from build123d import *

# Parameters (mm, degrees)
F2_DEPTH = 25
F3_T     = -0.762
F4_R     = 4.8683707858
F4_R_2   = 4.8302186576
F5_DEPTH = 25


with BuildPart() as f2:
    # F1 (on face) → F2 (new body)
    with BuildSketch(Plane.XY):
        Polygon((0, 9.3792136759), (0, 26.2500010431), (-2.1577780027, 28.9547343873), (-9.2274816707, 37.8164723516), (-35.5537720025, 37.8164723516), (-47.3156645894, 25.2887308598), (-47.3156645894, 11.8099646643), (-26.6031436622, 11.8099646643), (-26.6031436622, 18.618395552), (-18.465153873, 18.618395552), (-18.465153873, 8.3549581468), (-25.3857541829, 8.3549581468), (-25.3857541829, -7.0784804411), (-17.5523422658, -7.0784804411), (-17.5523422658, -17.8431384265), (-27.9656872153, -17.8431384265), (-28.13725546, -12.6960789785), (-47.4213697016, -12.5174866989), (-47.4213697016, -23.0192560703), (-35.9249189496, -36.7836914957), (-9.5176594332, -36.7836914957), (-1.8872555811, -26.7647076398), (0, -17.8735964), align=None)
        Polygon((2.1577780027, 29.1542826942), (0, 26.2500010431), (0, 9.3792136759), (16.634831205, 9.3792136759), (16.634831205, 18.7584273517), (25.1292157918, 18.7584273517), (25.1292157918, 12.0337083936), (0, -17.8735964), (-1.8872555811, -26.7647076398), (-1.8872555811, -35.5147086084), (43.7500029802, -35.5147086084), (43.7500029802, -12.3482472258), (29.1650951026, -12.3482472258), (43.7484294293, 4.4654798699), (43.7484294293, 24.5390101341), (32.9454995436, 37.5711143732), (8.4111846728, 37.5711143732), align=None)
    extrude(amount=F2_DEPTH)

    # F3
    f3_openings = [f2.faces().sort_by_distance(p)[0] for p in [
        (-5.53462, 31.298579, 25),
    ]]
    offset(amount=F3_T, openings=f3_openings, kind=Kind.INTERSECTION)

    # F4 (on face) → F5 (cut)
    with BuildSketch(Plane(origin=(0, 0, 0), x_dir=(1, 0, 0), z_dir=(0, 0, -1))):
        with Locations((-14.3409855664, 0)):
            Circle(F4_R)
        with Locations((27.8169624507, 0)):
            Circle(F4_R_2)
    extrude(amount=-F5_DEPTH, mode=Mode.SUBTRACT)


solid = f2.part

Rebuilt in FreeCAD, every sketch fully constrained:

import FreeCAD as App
import Part
import Sketcher

V = App.Vector


def faces_at(feature, points):
    """Names of the faces that lie closest to the given points."""
    faces = feature.Shape.Faces
    near = lambda p: min(range(len(faces)), key=lambda i: faces[i].distToShape(Part.Vertex(*p))[0])
    return sorted({f"Face{near(p) + 1}" for p in points})


def add_polygon(sketch, points):
    """Adds a closed chain of lines whose ends are joined by coincident constraints."""
    first, n = sketch.GeometryCount, len(points)
    for a, b in zip(points, points[1:] + points[:1]):
        sketch.addGeometry(Part.LineSegment(App.Vector(*a, 0), App.Vector(*b, 0)), False)
    for i in range(n):
        sketch.addConstraint(Sketcher.Constraint("Coincident", first + i, 2, first + (i + 1) % n, 1))

doc = App.newDocument("Part")
body = doc.addObject("PartDesign::Body", "Body")

sketch1 = doc.addObject("Sketcher::SketchObject", "Sketch")
body.addObject(sketch1)
sketch1.AttachmentSupport = (doc.XY_Plane, [""])
sketch1.MapMode = "FlatFace"
add_polygon(sketch1, [(0, 26.250001), (-2.157778, 28.954734), (-9.227482, 37.816472), (-35.553772, 37.816472), (-47.315665, 25.288731), (-47.315665, 11.809965), (-26.603144, 11.809965), (-26.603144, 18.618396), (-18.465154, 18.618396), (-18.465154, 8.354958), (-25.385754, 8.354958), (-25.385754, -7.07848), (-17.552342, -7.07848), (-17.552342, -17.843138), (-27.965687, -17.843138), (-28.137255, -12.696079), (-47.42137, -12.517487), (-47.42137, -23.019256), (-35.924919, -36.783691), (-9.517659, -36.783691), (-1.887256, -26.764708), (-1.887256, -35.514709), (43.750003, -35.514709), (43.750003, -12.348247), (29.165095, -12.348247), (43.748429, 4.46548), (43.748429, 24.53901), (32.9455, 37.571114), (8.411185, 37.571114), (2.157778, 29.154283)])
add_polygon(sketch1, [(0, -17.873596), (0, 9.379214), (16.634831, 9.379214), (16.634831, 18.758427), (25.129216, 18.758427), (25.129216, 12.033708)])
sketch1.addConstraint(Sketcher.Constraint("Horizontal", 2))
sketch1.addConstraint(Sketcher.Constraint("Vertical", 4))
sketch1.addConstraint(Sketcher.Constraint("Horizontal", 5))
sketch1.addConstraint(Sketcher.Constraint("Vertical", 6))
sketch1.addConstraint(Sketcher.Constraint("Horizontal", 7))
sketch1.addConstraint(Sketcher.Constraint("Vertical", 8))
sketch1.addConstraint(Sketcher.Constraint("Horizontal", 9))
sketch1.addConstraint(Sketcher.Constraint("Vertical", 10))
sketch1.addConstraint(Sketcher.Constraint("Horizontal", 11))
sketch1.addConstraint(Sketcher.Constraint("Vertical", 12))
sketch1.addConstraint(Sketcher.Constraint("Horizontal", 13))
sketch1.addConstraint(Sketcher.Constraint("Vertical", 16))
sketch1.addConstraint(Sketcher.Constraint("Horizontal", 18))
sketch1.addConstraint(Sketcher.Constraint("Vertical", 20))
sketch1.addConstraint(Sketcher.Constraint("Horizontal", 21))
sketch1.addConstraint(Sketcher.Constraint("Vertical", 22))
sketch1.addConstraint(Sketcher.Constraint("Horizontal", 23))
sketch1.addConstraint(Sketcher.Constraint("Vertical", 25))
sketch1.addConstraint(Sketcher.Constraint("Horizontal", 27))
sketch1.addConstraint(Sketcher.Constraint("Vertical", 30))
sketch1.addConstraint(Sketcher.Constraint("Horizontal", 31))
sketch1.addConstraint(Sketcher.Constraint("Vertical", 32))
sketch1.addConstraint(Sketcher.Constraint("Horizontal", 33))
sketch1.addConstraint(Sketcher.Constraint("Vertical", 34))
sketch1.addConstraint(Sketcher.Constraint("PointOnObject", 29, 2, -2))
sketch1.addConstraint(Sketcher.Constraint("PointOnObject", 30, 2, -2))
sketch1.addConstraint(Sketcher.Constraint("Parallel", 0, 1))
sketch1.addConstraint(Sketcher.Constraint("Parallel", 28, 29))
sketch1.addConstraint(Sketcher.Constraint("DistanceY", 20, 2, 20, 1, 8.750001))
sketch1.addConstraint(Sketcher.Constraint("Distance", 0, 3.459998))
sketch1.addConstraint(Sketcher.Constraint("DistanceY", -1, 1, 29, 2, 26.250001))
sketch1.addConstraint(Sketcher.Constraint("DistanceX", 14, 2, 19, 2, 26.25))
sketch1.addConstraint(Sketcher.Constraint("DistanceX", 9, 2, 9, 1, 6.9206))
sketch1.addConstraint(Sketcher.Constraint("Distance", 3, 17.1839))
sketch1.addConstraint(Sketcher.Constraint("DistanceX", 2, 2, 2, 1, 26.32629))
sketch1.addConstraint(Sketcher.Constraint("DistanceX", 5, 1, 5, 2, 20.712521))
sketch1.addConstraint(Sketcher.Constraint("DistanceX", 7, 1, 7, 2, 8.13799))
sketch1.addConstraint(Sketcher.Constraint("DistanceX", 11, 1, 11, 2, 7.833412))
sketch1.addConstraint(Sketcher.Constraint("DistanceX", 18, 1, 18, 2, 26.40726))
sketch1.addConstraint(Sketcher.Constraint("DistanceX", 21, 1, 21, 2, 45.637259))
sketch1.addConstraint(Sketcher.Constraint("DistanceX", 31, 1, 31, 2, 16.634831))
sketch1.addConstraint(Sketcher.Constraint("DistanceY", 6, 1, 6, 2, 6.808431))
sketch1.addConstraint(Sketcher.Constraint("DistanceY", 10, 2, 10, 1, 15.433439))
sketch1.addConstraint(Sketcher.Constraint("DistanceY", 16, 2, 16, 1, 10.501769))
sketch1.addConstraint(Sketcher.Constraint("DistanceY", 22, 1, 22, 2, 23.166461))
sketch1.addConstraint(Sketcher.Constraint("DistanceY", 25, 1, 25, 2, 20.07353))
sketch1.addConstraint(Sketcher.Constraint("DistanceY", 30, 1, 30, 2, 27.25281))
sketch1.addConstraint(Sketcher.Constraint("DistanceY", 34, 2, 34, 1, 6.724719))
sketch1.addConstraint(Sketcher.Constraint("DistanceX", -1, 1, 26, 2, 32.9455))
sketch1.addConstraint(Sketcher.Constraint("DistanceX", 14, 2, 10, 2, 2.751501))
sketch1.addConstraint(Sketcher.Constraint("DistanceY", 14, 2, 10, 2, 5.617599))
sketch1.addConstraint(Sketcher.Constraint("DistanceY", 34, 2, 25, 2, 12.505302))
sketch1.addConstraint(Sketcher.Constraint("Distance", 14, 5.149918))
sketch1.addConstraint(Sketcher.Constraint("Distance", 15, 19.284941))
sketch1.addConstraint(Sketcher.Constraint("Distance", 17, 17.933992))
sketch1.addConstraint(Sketcher.Constraint("Distance", 29, 3.618129))
sketch1.addConstraint(Sketcher.Constraint("Distance", 35, 39.063082))
sketch1.addConstraint(Sketcher.Constraint("DistanceX", 13, 2, 13, 1, 10.413345))
sketch1.addConstraint(Sketcher.Constraint("DistanceX", 23, 2, 23, 1, 14.584908))
sketch1.addConstraint(Sketcher.Constraint("DistanceX", 27, 2, 27, 1, 24.534315))
sketch1.addConstraint(Sketcher.Constraint("DistanceX", 33, 1, 33, 2, 8.494385))
sketch1.addConstraint(Sketcher.Constraint("DistanceY", 4, 2, 4, 1, 13.478766))
sketch1.addConstraint(Sketcher.Constraint("DistanceY", 8, 2, 8, 1, 10.263437))
sketch1.addConstraint(Sketcher.Constraint("DistanceX", 0, 2, -1, 1, 2.157778))
sketch1.addConstraint(Sketcher.Constraint("DistanceX", 1, 2, -1, 1, 9.227482))
sketch1.addConstraint(Sketcher.Constraint("DistanceY", -1, 1, 3, 2, 25.288731))
sketch1.addConstraint(Sketcher.Constraint("DistanceX", 15, 2, -1, 1, 47.42137))
sketch1.addConstraint(Sketcher.Constraint("DistanceX", 17, 2, -1, 1, 35.924919))
sketch1.addConstraint(Sketcher.Constraint("DistanceY", 20, 2, -1, 1, 35.514709))
sketch1.addConstraint(Sketcher.Constraint("DistanceX", -1, 1, 24, 2, 43.748429))
sketch1.addConstraint(Sketcher.Constraint("DistanceY", -1, 1, 24, 2, 4.46548))
sketch1.addConstraint(Sketcher.Constraint("DistanceX", -1, 1, 28, 2, 2.157778))
pad1 = doc.addObject("PartDesign::Pad", "Pad")
body.addObject(pad1)
pad1.Profile = sketch1
pad1.Length = 25
doc.recompute()

thickness = doc.addObject("PartDesign::Thickness", "Thickness")
body.addObject(thickness)
thickness.Base = (pad1, faces_at(pad1, [(-1.836, 0.516, 25)]))
thickness.Value = 0.762
thickness.Reversed = True
thickness.Join = "Intersection"

sketch2 = doc.addObject("Sketcher::SketchObject", "Sketch001")
body.addObject(sketch2)
sketch2.AttachmentSupport = (doc.XY_Plane, [""])
sketch2.MapMode = "FlatFace"
sketch2.addGeometry(Part.Circle(V(-14.340986, 0, 0), V(0, 0, 1), 4.868371), False)
sketch2.addGeometry(Part.Circle(V(27.816962, 0, 0), V(0, 0, 1), 4.830219), False)
sketch2.addConstraint(Sketcher.Constraint("PointOnObject", 0, 3, -1))
sketch2.addConstraint(Sketcher.Constraint("PointOnObject", 1, 3, -1))
sketch2.addConstraint(Sketcher.Constraint("Diameter", 0, 9.736742))
sketch2.addConstraint(Sketcher.Constraint("Diameter", 1, 9.660437))
sketch2.addConstraint(Sketcher.Constraint("DistanceX", 0, 3, 1, 3, 42.157948))
sketch2.addConstraint(Sketcher.Constraint("DistanceX", 0, 3, -1, 1, 14.340986))
pocket1 = doc.addObject("PartDesign::Pocket", "Pocket")
body.addObject(pocket1)
pocket1.Profile = sketch2
pocket1.Length = 25
pocket1.Reversed = True

doc.recompute()
